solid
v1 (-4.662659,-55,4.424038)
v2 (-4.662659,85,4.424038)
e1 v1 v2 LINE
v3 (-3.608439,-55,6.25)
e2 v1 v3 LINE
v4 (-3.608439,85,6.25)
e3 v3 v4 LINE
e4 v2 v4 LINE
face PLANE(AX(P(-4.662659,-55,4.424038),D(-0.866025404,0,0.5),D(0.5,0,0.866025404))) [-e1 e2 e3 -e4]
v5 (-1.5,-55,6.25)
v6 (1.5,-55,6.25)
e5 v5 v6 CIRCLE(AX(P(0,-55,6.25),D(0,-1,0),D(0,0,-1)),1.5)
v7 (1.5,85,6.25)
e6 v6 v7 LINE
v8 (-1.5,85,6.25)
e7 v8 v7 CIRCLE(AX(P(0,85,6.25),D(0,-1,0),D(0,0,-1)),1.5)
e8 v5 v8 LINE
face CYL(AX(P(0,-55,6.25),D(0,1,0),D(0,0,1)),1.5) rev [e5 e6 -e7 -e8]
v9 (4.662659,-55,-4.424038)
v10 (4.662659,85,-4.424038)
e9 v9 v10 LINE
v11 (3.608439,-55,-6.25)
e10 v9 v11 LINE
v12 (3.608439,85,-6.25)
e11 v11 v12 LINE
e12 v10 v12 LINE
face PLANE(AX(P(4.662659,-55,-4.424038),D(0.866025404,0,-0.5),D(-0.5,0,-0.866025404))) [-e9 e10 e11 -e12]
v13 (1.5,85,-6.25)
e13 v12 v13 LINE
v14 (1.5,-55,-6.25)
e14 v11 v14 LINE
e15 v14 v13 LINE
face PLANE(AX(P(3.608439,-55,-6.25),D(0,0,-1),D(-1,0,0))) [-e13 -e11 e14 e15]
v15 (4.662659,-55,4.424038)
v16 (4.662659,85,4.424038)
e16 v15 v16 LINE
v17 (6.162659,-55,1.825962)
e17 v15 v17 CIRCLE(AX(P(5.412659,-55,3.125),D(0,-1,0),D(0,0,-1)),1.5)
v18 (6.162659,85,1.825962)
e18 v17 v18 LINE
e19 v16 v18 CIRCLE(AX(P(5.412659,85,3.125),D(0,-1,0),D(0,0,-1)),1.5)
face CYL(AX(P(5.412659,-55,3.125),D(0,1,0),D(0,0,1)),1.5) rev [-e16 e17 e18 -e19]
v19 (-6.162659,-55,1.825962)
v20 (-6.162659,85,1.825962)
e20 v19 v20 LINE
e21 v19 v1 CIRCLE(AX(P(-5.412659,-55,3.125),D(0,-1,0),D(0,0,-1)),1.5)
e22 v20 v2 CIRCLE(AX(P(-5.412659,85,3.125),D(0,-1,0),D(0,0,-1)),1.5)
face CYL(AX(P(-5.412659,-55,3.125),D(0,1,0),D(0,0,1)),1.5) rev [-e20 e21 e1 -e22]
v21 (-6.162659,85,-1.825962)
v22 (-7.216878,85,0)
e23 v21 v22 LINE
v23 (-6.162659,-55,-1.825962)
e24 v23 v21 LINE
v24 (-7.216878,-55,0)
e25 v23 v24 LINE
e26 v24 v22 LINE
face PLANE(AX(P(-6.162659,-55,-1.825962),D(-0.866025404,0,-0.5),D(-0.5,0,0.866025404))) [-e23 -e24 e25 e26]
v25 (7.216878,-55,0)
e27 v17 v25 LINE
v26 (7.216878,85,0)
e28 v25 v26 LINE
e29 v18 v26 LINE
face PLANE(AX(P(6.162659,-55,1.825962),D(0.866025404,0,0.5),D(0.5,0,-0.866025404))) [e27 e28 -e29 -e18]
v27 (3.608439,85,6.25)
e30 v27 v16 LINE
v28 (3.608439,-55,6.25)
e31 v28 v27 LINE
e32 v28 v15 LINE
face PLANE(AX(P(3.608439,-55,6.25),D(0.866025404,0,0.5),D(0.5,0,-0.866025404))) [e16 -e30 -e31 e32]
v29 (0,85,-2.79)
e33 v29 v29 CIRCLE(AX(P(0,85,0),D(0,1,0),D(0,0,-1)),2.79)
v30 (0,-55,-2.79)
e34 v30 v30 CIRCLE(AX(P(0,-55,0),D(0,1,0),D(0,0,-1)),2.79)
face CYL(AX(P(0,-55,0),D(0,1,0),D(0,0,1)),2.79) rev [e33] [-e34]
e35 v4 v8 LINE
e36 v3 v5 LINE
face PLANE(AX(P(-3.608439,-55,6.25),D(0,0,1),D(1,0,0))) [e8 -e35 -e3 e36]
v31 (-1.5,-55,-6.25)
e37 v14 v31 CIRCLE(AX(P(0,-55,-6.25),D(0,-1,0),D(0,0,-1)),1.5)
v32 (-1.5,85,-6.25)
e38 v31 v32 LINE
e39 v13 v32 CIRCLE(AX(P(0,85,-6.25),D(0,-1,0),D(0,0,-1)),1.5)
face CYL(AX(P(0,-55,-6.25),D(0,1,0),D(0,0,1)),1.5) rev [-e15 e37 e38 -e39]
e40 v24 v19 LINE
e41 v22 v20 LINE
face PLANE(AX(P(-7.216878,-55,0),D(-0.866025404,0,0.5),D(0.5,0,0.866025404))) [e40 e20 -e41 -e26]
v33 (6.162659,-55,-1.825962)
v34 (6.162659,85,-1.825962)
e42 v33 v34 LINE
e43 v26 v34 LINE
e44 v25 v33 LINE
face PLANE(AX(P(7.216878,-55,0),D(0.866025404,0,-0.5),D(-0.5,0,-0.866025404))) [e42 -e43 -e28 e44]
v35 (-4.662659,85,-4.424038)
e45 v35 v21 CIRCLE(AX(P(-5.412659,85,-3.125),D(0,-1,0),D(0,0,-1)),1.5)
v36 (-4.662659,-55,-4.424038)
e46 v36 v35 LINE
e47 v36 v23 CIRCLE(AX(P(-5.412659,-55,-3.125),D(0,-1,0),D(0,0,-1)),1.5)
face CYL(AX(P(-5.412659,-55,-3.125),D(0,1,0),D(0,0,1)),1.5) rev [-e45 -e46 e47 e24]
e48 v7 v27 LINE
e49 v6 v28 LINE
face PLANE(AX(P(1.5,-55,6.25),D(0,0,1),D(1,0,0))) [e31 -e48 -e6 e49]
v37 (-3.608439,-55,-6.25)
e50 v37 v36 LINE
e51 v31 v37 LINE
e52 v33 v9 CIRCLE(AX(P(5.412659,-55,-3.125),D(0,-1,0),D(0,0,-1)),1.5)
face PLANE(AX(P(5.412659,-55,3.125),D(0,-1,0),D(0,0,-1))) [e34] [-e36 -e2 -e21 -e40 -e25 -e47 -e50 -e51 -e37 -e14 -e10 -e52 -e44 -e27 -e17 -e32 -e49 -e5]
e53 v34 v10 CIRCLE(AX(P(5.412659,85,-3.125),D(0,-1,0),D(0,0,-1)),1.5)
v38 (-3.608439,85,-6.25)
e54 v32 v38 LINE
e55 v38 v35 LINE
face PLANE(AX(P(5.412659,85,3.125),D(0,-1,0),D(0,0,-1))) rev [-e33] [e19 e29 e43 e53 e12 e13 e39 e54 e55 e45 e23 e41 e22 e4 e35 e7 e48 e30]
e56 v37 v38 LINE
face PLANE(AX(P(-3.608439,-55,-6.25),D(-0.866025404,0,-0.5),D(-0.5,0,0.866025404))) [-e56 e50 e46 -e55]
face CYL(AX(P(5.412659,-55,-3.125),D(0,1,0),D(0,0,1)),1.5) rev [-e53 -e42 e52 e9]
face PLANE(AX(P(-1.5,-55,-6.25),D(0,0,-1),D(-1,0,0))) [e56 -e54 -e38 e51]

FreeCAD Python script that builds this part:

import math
import FreeCAD as App
import Part
import Sketcher
Q = App.Units.Quantity

doc = App.newDocument("Part")
body = doc.addObject("PartDesign::Body", "Body")

# Sketch on XZ plane
sketch1 = doc.addObject("Sketcher::SketchObject", "Sketch")
body.addObject(sketch1)
sketch1.AttachmentSupport = (doc.XZ_Plane, [""])
sketch1.MapMode = "FlatFace"
sketch1.AttachmentOffset = App.Placement(App.Vector(0, 0, -85), App.Rotation())
sketch1.addGeometry(Part.LineSegment(App.Vector(6.2, 1.8, 0), App.Vector(7.2, 0, 0)), False)
sketch1.addGeometry(Part.LineSegment(App.Vector(7.2, 0, 0), App.Vector(6.2, -1.8, 0)), False)
sketch1.addGeometry(Part.ArcOfCircle(Part.Circle(App.Vector(5.4, -3.1, 0), App.Vector(0, 0, 1), 1.5), math.radians(60), math.radians(240)), False)
sketch1.addGeometry(Part.LineSegment(App.Vector(4.7, -4.4, 0), App.Vector(3.6, -6.2, 0)), False)
sketch1.addGeometry(Part.LineSegment(App.Vector(3.6, -6.2, 0), App.Vector(1.5, -6.2, 0)), False)
sketch1.addGeometry(Part.ArcOfCircle(Part.Circle(App.Vector(0, -6.2, 0), App.Vector(0, 0, 1), 1.5), math.radians(0), math.radians(180)), False)
sketch1.addGeometry(Part.LineSegment(App.Vector(-1.5, -6.2, 0), App.Vector(-3.6, -6.2, 0)), False)
sketch1.addGeometry(Part.LineSegment(App.Vector(-3.6, -6.2, 0), App.Vector(-4.7, -4.4, 0)), False)
sketch1.addGeometry(Part.ArcOfCircle(Part.Circle(App.Vector(-5.4, -3.1, 0), App.Vector(0, 0, 1), 1.5), math.radians(-60), math.radians(120)), False)
sketch1.addGeometry(Part.LineSegment(App.Vector(-6.2, -1.8, 0), App.Vector(-7.2, 0, 0)), False)
sketch1.addGeometry(Part.LineSegment(App.Vector(-7.2, 0, 0), App.Vector(-6.2, 1.8, 0)), False)
sketch1.addGeometry(Part.ArcOfCircle(Part.Circle(App.Vector(-5.4, 3.1, 0), App.Vector(0, 0, 1), 1.5), math.radians(-120), math.radians(60)), False)
sketch1.addGeometry(Part.LineSegment(App.Vector(-4.7, 4.4, 0), App.Vector(-3.6, 6.2, 0)), False)
sketch1.addGeometry(Part.LineSegment(App.Vector(-3.6, 6.2, 0), App.Vector(-1.5, 6.2, 0)), False)
sketch1.addGeometry(Part.ArcOfCircle(Part.Circle(App.Vector(0, 6.2, 0), App.Vector(0, 0, 1), 1.5), math.radians(180), math.radians(360)), False)
sketch1.addGeometry(Part.LineSegment(App.Vector(1.5, 6.2, 0), App.Vector(3.6, 6.2, 0)), False)
sketch1.addGeometry(Part.LineSegment(App.Vector(3.6, 6.2, 0), App.Vector(4.7, 4.4, 0)), False)
sketch1.addGeometry(Part.ArcOfCircle(Part.Circle(App.Vector(5.4, 3.1, 0), App.Vector(0, 0, 1), 1.5), math.radians(120), math.radians(300)), False)
sketch1.addGeometry(Part.Circle(App.Vector(0, 0, 0), App.Vector(0, 0, 1), 2.8), False)
sketch1.addConstraint(Sketcher.Constraint("Coincident", 0, 2, 1, 1))
sketch1.addConstraint(Sketcher.Constraint("Coincident", 1, 2, 2, 1))
sketch1.addConstraint(Sketcher.Constraint("Coincident", 2, 2, 3, 1))
sketch1.addConstraint(Sketcher.Constraint("Coincident", 3, 2, 4, 1))
sketch1.addConstraint(Sketcher.Constraint("Coincident", 4, 2, 5, 1))
sketch1.addConstraint(Sketcher.Constraint("Coincident", 5, 2, 6, 1))
sketch1.addConstraint(Sketcher.Constraint("Coincident", 6, 2, 7, 1))
sketch1.addConstraint(Sketcher.Constraint("Coincident", 7, 2, 8, 1))
sketch1.addConstraint(Sketcher.Constraint("Coincident", 8, 2, 9, 1))
sketch1.addConstraint(Sketcher.Constraint("Coincident", 9, 2, 10, 1))
sketch1.addConstraint(Sketcher.Constraint("Coincident", 10, 2, 11, 1))
sketch1.addConstraint(Sketcher.Constraint("Coincident", 11, 2, 12, 1))
sketch1.addConstraint(Sketcher.Constraint("Coincident", 12, 2, 13, 1))
sketch1.addConstraint(Sketcher.Constraint("Coincident", 13, 2, 14, 1))
sketch1.addConstraint(Sketcher.Constraint("Coincident", 14, 2, 15, 1))
sketch1.addConstraint(Sketcher.Constraint("Coincident", 15, 2, 16, 1))
sketch1.addConstraint(Sketcher.Constraint("Coincident", 16, 2, 17, 1))
sketch1.addConstraint(Sketcher.Constraint("Coincident", 17, 2, 0, 1))
sketch1.addConstraint(Sketcher.Constraint("Horizontal", 4))
sketch1.addConstraint(Sketcher.Constraint("Horizontal", 6))
sketch1.addConstraint(Sketcher.Constraint("Horizontal", 13))
sketch1.addConstraint(Sketcher.Constraint("Horizontal", 15))
sketch1.addConstraint(Sketcher.Constraint("Coincident", 18, 3, -1, 1))
sketch1.addConstraint(Sketcher.Constraint("Equal", 2, 5))
sketch1.addConstraint(Sketcher.Constraint("Equal", 5, 8))
sketch1.addConstraint(Sketcher.Constraint("Equal", 8, 11))
sketch1.addConstraint(Sketcher.Constraint("Equal", 11, 14))
sketch1.addConstraint(Sketcher.Constraint("Equal", 14, 17))
sketch1.addConstraint(Sketcher.Constraint("Symmetric", 2, 3, 11, 3, -1, 1))
sketch1.addConstraint(Sketcher.Constraint("Symmetric", 5, 3, 14, 3, -1, 1))
sketch1.addConstraint(Sketcher.Constraint("Symmetric", 8, 3, 17, 3, -1, 1))
sketch1.addConstraint(Sketcher.Constraint("Symmetric", 0, 2, 9, 2, -1, 1))
sketch1.addConstraint(Sketcher.Constraint("Symmetric", 3, 2, 12, 2, -1, 1))
sketch1.addConstraint(Sketcher.Constraint("Symmetric", 6, 2, 15, 2, -1, 1))
sketch1.addConstraint(Sketcher.Constraint("Symmetric", 2, 3, 8, 3, -2))
sketch1.addConstraint(Sketcher.Constraint("Symmetric", 4, 2, 5, 2, -2))
sketch1.addConstraint(Sketcher.Constraint("PointOnObject", 0, 2, -1))
sketch1.addConstraint(Sketcher.Constraint("Parallel", 1, 3))
sketch1.addConstraint(Sketcher.Constraint("Parallel", 0, 7))
sketch1.addConstraint(Sketcher.Constraint("Parallel", 7, 9))
sketch1.addConstraint(Sketcher.Constraint("Parallel", 3, 10))
sketch1.addConstraint(Sketcher.Constraint("Parallel", 10, 12))
sketch1.addConstraint(Sketcher.Constraint("Parallel", 9, 16))
sketch1.addConstraint(Sketcher.Constraint("Horizontal", 5, 3, 3, 2))
sketch1.addConstraint(Sketcher.Constraint("Horizontal", 2, 2, 7, 2))
sketch1.addConstraint(Sketcher.Constraint("Horizontal", 1, 2, 8, 2))
sketch1.addConstraint(Sketcher.Constraint("Equal", 1, 3))
sketch1.addConstraint(Sketcher.Constraint("Radius", 2, Q("1.5 mm")))
sketch1.addConstraint(Sketcher.Constraint("Diameter", 18, Q("5.58 mm")))
sketch1.addConstraint(Sketcher.Constraint("Angle", 0, Q("-60 deg")))
sketch1.addConstraint(Sketcher.Constraint("DistanceY", 5, 3, 14, 3, Q("12.5 mm")))
sketch1.addConstraint(Sketcher.Constraint("DistanceX", 2, 2, 1, 2, Q("1.5 mm")))
sketch1.addConstraint(Sketcher.Constraint("DistanceY", 8, 3, 11, 3, Q("6.25 mm")))
sketch1.addConstraint(Sketcher.Constraint("DistanceX", 4, 2, 4, 1, Q("2.108439 mm")))
pad1 = doc.addObject("PartDesign::Pad", "Pad")
body.addObject(pad1)
pad1.Profile = sketch1
pad1.Length = 140

doc.recompute()
